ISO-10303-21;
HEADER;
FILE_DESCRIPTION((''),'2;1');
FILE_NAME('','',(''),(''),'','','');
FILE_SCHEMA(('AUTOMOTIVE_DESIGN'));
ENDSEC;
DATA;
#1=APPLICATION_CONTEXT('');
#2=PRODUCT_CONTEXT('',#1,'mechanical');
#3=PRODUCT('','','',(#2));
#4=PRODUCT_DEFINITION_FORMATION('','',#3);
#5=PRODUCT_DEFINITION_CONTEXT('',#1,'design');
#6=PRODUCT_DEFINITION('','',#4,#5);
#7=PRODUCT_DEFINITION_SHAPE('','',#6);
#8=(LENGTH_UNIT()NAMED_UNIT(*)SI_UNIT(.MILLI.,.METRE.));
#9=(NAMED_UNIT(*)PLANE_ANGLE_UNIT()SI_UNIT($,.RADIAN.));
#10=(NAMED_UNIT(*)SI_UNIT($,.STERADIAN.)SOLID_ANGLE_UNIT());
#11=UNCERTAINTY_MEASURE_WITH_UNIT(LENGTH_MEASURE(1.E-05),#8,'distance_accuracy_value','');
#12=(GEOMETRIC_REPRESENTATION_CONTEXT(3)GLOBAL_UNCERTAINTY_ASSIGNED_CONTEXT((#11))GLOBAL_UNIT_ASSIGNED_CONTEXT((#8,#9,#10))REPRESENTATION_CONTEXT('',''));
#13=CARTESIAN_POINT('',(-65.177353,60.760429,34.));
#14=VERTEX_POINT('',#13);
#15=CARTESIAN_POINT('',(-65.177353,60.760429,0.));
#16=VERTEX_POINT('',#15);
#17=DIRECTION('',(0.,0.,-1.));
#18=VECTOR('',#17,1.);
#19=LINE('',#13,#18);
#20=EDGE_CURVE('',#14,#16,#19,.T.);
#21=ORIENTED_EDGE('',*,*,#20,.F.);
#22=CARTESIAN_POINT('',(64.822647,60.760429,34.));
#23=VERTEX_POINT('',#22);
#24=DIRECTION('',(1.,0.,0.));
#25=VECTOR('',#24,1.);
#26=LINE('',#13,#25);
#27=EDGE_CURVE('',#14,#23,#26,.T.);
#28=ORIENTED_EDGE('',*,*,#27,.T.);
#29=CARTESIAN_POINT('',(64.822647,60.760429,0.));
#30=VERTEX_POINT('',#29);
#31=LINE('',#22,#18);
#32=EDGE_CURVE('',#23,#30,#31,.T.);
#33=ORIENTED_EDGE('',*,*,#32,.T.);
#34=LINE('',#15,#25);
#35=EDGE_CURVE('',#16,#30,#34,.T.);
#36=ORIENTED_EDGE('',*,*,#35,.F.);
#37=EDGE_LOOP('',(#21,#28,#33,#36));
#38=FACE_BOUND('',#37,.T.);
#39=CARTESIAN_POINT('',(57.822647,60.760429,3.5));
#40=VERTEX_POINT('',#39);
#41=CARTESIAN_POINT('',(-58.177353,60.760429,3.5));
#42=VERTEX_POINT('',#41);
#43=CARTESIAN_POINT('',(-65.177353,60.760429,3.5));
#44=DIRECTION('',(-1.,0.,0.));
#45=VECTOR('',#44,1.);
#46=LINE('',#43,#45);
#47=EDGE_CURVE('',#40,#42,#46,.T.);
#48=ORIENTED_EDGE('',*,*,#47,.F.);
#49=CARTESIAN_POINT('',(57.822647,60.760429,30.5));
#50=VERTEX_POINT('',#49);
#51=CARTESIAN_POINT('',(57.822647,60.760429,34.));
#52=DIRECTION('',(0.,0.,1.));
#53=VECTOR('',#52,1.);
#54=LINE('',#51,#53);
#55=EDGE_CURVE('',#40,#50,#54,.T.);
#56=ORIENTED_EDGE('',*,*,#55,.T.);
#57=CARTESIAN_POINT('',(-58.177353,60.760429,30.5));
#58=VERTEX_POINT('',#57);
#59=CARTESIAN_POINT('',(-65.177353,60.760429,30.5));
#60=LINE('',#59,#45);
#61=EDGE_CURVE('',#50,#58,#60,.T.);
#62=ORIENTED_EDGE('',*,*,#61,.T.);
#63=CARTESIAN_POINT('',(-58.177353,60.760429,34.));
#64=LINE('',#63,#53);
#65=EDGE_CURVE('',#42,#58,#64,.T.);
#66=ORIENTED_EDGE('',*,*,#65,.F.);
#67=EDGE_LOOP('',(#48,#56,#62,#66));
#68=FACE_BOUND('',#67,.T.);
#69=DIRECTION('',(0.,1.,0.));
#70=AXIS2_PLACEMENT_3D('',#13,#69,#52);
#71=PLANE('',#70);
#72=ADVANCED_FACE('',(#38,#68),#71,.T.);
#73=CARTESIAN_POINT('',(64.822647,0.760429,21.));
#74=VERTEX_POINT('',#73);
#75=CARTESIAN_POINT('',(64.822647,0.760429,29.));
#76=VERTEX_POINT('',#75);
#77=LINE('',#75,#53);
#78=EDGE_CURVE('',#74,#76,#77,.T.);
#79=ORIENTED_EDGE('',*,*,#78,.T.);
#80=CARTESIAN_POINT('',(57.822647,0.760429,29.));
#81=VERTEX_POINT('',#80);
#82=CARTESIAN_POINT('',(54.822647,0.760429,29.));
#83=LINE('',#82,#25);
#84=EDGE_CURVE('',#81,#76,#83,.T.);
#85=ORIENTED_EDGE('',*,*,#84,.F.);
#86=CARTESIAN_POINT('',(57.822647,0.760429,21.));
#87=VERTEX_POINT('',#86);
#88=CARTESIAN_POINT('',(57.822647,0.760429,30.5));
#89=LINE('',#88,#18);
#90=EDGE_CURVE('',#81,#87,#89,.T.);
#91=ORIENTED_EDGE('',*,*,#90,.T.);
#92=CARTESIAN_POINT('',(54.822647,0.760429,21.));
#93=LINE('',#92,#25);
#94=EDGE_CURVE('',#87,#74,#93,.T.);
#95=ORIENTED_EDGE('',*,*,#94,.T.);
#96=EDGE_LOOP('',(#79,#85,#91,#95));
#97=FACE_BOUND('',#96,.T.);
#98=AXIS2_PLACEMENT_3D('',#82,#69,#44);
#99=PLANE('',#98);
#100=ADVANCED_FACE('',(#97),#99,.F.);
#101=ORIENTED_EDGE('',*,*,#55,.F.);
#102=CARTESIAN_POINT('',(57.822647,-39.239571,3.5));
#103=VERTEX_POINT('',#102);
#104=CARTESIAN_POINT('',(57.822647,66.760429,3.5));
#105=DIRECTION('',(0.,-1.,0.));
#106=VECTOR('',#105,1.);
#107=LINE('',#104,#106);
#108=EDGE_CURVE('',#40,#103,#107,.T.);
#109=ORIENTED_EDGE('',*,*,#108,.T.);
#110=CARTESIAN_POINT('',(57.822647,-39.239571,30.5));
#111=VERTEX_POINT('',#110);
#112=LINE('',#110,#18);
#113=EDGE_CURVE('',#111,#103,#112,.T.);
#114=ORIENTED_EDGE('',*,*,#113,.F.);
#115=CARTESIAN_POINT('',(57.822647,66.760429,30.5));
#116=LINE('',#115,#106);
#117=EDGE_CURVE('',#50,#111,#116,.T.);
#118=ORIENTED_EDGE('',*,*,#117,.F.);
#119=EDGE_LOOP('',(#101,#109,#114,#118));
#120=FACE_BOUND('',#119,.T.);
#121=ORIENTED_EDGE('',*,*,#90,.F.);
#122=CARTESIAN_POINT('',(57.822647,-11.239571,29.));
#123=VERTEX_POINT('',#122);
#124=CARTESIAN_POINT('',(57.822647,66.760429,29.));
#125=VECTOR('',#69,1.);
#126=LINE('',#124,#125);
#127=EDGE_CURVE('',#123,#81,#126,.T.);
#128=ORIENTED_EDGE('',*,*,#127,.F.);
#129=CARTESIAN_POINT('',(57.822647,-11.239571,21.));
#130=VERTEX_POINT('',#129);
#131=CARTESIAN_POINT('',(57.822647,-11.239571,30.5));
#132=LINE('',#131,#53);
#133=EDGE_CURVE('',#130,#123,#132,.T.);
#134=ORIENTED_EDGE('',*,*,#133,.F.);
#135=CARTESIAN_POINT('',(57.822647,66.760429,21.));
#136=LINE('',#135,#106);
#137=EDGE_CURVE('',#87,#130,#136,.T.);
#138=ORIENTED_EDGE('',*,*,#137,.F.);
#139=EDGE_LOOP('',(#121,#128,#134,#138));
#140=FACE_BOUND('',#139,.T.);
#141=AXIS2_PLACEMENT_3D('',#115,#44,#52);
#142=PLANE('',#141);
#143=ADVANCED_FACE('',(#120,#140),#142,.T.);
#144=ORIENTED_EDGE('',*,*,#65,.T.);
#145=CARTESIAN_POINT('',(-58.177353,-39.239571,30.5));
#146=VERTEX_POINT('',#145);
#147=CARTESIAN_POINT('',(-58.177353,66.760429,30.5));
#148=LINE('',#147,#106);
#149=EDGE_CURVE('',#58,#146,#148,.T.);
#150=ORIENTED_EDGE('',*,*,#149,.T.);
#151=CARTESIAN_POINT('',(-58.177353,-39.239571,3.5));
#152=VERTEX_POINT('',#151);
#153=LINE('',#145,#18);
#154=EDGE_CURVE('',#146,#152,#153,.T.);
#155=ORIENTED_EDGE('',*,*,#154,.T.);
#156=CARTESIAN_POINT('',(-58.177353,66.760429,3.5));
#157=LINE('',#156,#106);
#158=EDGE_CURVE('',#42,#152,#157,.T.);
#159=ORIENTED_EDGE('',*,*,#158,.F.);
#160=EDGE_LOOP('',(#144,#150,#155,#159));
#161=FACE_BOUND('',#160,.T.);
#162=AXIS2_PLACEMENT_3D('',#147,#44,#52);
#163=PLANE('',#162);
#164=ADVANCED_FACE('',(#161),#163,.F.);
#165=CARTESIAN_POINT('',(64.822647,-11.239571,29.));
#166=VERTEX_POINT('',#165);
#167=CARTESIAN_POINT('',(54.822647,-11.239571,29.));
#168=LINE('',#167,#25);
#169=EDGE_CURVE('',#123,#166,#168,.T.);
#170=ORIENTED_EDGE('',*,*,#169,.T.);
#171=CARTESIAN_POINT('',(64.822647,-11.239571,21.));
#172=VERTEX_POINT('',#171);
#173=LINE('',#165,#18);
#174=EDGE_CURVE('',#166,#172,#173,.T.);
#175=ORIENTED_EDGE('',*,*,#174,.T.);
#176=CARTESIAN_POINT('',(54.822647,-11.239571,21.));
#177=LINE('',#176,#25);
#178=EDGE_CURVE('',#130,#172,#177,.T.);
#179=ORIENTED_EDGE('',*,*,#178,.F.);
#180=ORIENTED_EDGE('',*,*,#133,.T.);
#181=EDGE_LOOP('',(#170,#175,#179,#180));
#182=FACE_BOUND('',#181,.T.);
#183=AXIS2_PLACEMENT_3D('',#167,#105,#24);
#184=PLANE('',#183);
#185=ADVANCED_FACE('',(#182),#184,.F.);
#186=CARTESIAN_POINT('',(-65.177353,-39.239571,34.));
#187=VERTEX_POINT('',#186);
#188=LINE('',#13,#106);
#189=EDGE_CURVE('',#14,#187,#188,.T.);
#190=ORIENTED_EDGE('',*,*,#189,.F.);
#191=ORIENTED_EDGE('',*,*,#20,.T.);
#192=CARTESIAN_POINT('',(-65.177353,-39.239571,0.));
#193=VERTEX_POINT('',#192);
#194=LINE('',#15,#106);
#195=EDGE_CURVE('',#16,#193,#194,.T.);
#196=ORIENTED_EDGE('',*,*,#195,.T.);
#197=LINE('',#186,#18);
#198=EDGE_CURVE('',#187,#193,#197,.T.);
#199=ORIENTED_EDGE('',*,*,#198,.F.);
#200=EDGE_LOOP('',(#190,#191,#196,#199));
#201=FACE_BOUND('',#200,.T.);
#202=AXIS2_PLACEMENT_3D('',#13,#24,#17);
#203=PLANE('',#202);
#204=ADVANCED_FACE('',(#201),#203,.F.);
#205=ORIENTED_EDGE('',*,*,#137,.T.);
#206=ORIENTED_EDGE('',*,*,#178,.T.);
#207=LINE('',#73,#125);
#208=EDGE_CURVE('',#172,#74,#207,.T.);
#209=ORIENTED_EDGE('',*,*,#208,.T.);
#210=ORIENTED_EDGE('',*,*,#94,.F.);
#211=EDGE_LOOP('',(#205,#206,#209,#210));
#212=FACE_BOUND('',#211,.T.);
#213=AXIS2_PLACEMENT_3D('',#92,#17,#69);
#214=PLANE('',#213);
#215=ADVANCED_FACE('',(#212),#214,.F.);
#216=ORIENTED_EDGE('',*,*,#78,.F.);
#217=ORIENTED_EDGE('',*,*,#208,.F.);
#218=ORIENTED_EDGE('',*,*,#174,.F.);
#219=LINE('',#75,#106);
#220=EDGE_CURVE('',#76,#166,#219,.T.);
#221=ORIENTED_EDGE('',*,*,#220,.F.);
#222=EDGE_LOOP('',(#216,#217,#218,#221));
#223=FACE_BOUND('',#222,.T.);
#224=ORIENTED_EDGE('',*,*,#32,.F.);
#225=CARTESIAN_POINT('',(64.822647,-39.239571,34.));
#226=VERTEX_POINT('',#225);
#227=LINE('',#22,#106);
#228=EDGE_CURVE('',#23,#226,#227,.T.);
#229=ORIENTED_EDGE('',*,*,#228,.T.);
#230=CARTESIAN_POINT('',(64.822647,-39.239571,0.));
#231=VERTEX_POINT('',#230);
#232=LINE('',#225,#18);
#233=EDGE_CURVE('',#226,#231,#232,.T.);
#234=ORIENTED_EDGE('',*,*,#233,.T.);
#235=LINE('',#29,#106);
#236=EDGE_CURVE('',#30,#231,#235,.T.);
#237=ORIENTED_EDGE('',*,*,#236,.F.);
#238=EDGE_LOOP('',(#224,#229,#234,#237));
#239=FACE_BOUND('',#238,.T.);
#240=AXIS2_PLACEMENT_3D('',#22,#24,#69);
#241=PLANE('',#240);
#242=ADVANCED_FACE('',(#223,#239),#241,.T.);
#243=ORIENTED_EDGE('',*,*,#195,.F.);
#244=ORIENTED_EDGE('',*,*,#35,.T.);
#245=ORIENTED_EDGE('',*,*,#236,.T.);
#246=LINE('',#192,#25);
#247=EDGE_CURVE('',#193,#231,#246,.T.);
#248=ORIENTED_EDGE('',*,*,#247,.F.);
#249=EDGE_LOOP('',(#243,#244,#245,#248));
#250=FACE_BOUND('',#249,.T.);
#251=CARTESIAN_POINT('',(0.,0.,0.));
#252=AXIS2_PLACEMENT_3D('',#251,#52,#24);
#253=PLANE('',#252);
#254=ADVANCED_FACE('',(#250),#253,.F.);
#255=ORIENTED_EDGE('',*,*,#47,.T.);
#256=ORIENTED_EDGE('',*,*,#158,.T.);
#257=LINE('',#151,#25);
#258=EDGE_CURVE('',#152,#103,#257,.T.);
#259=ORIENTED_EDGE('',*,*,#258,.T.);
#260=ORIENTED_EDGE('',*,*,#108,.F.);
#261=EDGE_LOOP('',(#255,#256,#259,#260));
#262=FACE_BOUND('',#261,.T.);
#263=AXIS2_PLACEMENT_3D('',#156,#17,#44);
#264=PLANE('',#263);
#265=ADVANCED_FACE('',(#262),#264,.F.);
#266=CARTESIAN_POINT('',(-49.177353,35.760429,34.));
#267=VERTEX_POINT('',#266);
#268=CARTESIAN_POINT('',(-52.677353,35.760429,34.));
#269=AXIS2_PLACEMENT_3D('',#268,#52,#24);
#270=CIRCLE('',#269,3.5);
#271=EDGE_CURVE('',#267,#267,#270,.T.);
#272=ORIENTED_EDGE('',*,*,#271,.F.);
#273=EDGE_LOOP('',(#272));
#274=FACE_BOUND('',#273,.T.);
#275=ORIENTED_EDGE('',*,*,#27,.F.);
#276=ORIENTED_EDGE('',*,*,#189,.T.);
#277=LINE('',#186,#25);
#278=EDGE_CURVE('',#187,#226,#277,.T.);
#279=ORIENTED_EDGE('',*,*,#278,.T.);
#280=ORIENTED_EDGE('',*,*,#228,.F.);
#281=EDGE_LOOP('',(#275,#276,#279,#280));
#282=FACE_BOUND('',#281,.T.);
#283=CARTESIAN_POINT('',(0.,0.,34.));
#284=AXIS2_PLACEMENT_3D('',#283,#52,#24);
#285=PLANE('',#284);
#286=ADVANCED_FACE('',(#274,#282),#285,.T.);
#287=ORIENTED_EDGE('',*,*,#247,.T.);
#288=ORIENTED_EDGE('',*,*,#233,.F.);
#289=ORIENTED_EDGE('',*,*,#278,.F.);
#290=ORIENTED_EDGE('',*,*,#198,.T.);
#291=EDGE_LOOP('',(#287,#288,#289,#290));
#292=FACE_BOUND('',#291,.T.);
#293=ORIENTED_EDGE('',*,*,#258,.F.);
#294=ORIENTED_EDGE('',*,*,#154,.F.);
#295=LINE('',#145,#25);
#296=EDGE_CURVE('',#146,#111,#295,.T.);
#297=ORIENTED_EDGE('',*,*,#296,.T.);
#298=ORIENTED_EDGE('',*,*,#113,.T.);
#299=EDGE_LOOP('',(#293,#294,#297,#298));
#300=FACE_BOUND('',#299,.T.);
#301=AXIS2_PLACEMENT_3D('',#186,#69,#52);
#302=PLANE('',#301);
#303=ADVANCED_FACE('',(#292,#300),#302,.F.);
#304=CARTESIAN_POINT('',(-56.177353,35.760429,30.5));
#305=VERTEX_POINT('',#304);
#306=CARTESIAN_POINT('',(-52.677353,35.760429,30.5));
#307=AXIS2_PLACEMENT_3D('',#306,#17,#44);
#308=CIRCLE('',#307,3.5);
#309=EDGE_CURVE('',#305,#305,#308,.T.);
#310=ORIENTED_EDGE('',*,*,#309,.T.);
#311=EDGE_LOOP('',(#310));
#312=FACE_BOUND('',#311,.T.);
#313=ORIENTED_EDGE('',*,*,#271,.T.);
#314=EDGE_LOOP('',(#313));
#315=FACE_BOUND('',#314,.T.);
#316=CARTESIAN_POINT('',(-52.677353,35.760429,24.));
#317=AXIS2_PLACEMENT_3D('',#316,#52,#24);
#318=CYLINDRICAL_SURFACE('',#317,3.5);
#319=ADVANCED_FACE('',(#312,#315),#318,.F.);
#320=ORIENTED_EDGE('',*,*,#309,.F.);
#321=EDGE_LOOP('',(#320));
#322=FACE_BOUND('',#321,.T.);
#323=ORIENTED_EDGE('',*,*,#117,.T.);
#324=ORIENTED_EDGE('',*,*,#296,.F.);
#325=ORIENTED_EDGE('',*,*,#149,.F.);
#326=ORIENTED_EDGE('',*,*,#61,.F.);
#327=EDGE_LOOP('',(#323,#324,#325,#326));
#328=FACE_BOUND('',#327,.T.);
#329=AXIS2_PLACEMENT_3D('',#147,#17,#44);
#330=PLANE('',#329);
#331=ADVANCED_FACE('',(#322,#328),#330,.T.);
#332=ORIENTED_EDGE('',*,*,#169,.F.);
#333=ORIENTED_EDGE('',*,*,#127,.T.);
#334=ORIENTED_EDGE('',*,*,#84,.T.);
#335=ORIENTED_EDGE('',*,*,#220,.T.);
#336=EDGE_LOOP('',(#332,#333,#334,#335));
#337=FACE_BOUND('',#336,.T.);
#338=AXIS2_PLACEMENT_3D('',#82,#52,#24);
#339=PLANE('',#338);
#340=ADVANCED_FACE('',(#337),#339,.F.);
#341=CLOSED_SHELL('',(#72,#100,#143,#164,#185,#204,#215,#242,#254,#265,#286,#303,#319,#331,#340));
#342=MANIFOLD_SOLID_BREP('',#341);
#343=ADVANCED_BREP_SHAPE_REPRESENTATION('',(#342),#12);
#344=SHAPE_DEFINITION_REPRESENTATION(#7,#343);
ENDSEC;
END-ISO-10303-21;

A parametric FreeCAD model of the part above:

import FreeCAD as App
import Part
import Sketcher
Q = App.Units.Quantity

doc = App.newDocument("Part")
body = doc.addObject("PartDesign::Body", "Body")

# Sketch on XY plane
sketch1 = body.newObject("Sketcher::SketchObject", "Sketch")
sketch1.AttachmentSupport = (doc.getObject("XY_Plane"), [""])
sketch1.MapMode = "FlatFace"
sketch1.addGeometry(Part.LineSegment(App.Vector(-65, 61, 0), App.Vector(-65, -39, 0)), False)
sketch1.addGeometry(Part.LineSegment(App.Vector(-65, -39, 0), App.Vector(65, -39, 0)), False)
sketch1.addGeometry(Part.LineSegment(App.Vector(65, -39, 0), App.Vector(65, 61, 0)), False)
sketch1.addGeometry(Part.LineSegment(App.Vector(65, 61, 0), App.Vector(-65, 61, 0)), False)
sketch1.addConstraint(Sketcher.Constraint("Coincident", 0, 2, 1, 1))
sketch1.addConstraint(Sketcher.Constraint("Coincident", 1, 2, 2, 1))
sketch1.addConstraint(Sketcher.Constraint("Coincident", 2, 2, 3, 1))
sketch1.addConstraint(Sketcher.Constraint("Coincident", 3, 2, 0, 1))
sketch1.addConstraint(Sketcher.Constraint("Vertical", 0))
sketch1.addConstraint(Sketcher.Constraint("Horizontal", 1))
sketch1.addConstraint(Sketcher.Constraint("Vertical", 2))
sketch1.addConstraint(Sketcher.Constraint("Horizontal", 3))
sketch1.addConstraint(Sketcher.Constraint("DistanceX", 1, 1, 1, 2, Q("130 mm")))
sketch1.addConstraint(Sketcher.Constraint("DistanceY", 0, 2, 0, 1, Q("100 mm")))
sketch1.addConstraint(Sketcher.Constraint("DistanceY", 0, 2, -1, 1, Q("39.239571 mm")))
sketch1.addConstraint(Sketcher.Constraint("DistanceX", 0, 2, -1, 1, Q("65.177353 mm")))
pad1 = body.newObject("PartDesign::Pad", "Pad")
pad1.Profile = sketch1
pad1.Length = 34

# Sketch on XZ plane
sketch2 = body.newObject("Sketcher::SketchObject", "Sketch001")
sketch2.AttachmentSupport = (doc.getObject("XZ_Plane"), [""])
sketch2.MapMode = "FlatFace"
sketch2.AttachmentOffset = App.Placement(App.Vector(0, 0, 39.239571), App.Rotation())
sketch2.addGeometry(Part.LineSegment(App.Vector(-58, 30, 0), App.Vector(-58, 4, 0)), False)
sketch2.addGeometry(Part.LineSegment(App.Vector(-58, 4, 0), App.Vector(58, 4, 0)), False)
sketch2.addGeometry(Part.LineSegment(App.Vector(58, 4, 0), App.Vector(58, 30, 0)), False)
sketch2.addGeometry(Part.LineSegment(App.Vector(58, 30, 0), App.Vector(-58, 30, 0)), False)
sketch2.addConstraint(Sketcher.Constraint("Coincident", 0, 2, 1, 1))
sketch2.addConstraint(Sketcher.Constraint("Coincident", 1, 2, 2, 1))
sketch2.addConstraint(Sketcher.Constraint("Coincident", 2, 2, 3, 1))
sketch2.addConstraint(Sketcher.Constraint("Coincident", 3, 2, 0, 1))
sketch2.addConstraint(Sketcher.Constraint("Vertical", 0))
sketch2.addConstraint(Sketcher.Constraint("Horizontal", 1))
sketch2.addConstraint(Sketcher.Constraint("Vertical", 2))
sketch2.addConstraint(Sketcher.Constraint("Horizontal", 3))
sketch2.addConstraint(Sketcher.Constraint("DistanceX", 1, 1, 1, 2, Q("116 mm")))
sketch2.addConstraint(Sketcher.Constraint("DistanceY", 0, 2, 0, 1, Q("27 mm")))
sketch2.addConstraint(Sketcher.Constraint("DistanceY", -1, 1, 0, 2, Q("3.5 mm")))
sketch2.addConstraint(Sketcher.Constraint("DistanceX", 0, 2, -1, 1, Q("58.177353 mm")))
pocket1 = body.newObject("PartDesign::Pocket", "Pocket")
pocket1.Profile = sketch2
pocket1.Length = 106

# Sketch on XY plane
sketch3 = body.newObject("Sketcher::SketchObject", "Sketch002")
sketch3.AttachmentSupport = (doc.getObject("XY_Plane"), [""])
sketch3.MapMode = "FlatFace"
sketch3.AttachmentOffset = App.Placement(App.Vector(0, 0, 34), App.Rotation())
sketch3.addGeometry(Part.Circle(App.Vector(-52.7, 35.8, 0), App.Vector(0, 0, 1), 3.5), False)
sketch3.addConstraint(Sketcher.Constraint("Diameter", 0, Q("7 mm")))
sketch3.addConstraint(Sketcher.Constraint("DistanceY", -1, 1, 0, 3, Q("35.760429 mm")))
sketch3.addConstraint(Sketcher.Constraint("DistanceX", 0, 3, -1, 1, Q("52.677353 mm")))
pocket2 = body.newObject("PartDesign::Pocket", "Pocket001")
pocket2.Profile = sketch3
pocket2.Length = 10

# Sketch on YZ plane
sketch4 = body.newObject("Sketcher::SketchObject", "Sketch003")
sketch4.AttachmentSupport = (doc.getObject("YZ_Plane"), [""])
sketch4.MapMode = "FlatFace"
sketch4.AttachmentOffset = App.Placement(App.Vector(0, 0, 64.822647), App.Rotation())
sketch4.addGeometry(Part.LineSegment(App.Vector(1, 29, 0), App.Vector(-11, 29, 0)), False)
sketch4.addGeometry(Part.LineSegment(App.Vector(-11, 29, 0), App.Vector(-11, 21, 0)), False)
sketch4.addGeometry(Part.LineSegment(App.Vector(-11, 21, 0), App.Vector(1, 21, 0)), False)
sketch4.addGeometry(Part.LineSegment(App.Vector(1, 21, 0), App.Vector(1, 29, 0)), False)
sketch4.addConstraint(Sketcher.Constraint("Coincident", 0, 2, 1, 1))
sketch4.addConstraint(Sketcher.Constraint("Coincident", 1, 2, 2, 1))
sketch4.addConstraint(Sketcher.Constraint("Coincident", 2, 2, 3, 1))
sketch4.addConstraint(Sketcher.Constraint("Coincident", 3, 2, 0, 1))
sketch4.addConstraint(Sketcher.Constraint("Horizontal", 0))
sketch4.addConstraint(Sketcher.Constraint("Vertical", 1))
sketch4.addConstraint(Sketcher.Constraint("Horizontal", 2))
sketch4.addConstraint(Sketcher.Constraint("Vertical", 3))
sketch4.addConstraint(Sketcher.Constraint("DistanceX", 0, 2, 0, 1, Q("12 mm")))
sketch4.addConstraint(Sketcher.Constraint("DistanceY", 1, 2, 1, 1, Q("8 mm")))
sketch4.addConstraint(Sketcher.Constraint("DistanceY", -1, 1, 0, 2, Q("29 mm")))
sketch4.addConstraint(Sketcher.Constraint("DistanceX", 0, 2, -1, 1, Q("11.239571 mm")))
pocket3 = body.newObject("PartDesign::Pocket", "Pocket002")
pocket3.Profile = sketch4
pocket3.Length = 10

doc.recompute()
